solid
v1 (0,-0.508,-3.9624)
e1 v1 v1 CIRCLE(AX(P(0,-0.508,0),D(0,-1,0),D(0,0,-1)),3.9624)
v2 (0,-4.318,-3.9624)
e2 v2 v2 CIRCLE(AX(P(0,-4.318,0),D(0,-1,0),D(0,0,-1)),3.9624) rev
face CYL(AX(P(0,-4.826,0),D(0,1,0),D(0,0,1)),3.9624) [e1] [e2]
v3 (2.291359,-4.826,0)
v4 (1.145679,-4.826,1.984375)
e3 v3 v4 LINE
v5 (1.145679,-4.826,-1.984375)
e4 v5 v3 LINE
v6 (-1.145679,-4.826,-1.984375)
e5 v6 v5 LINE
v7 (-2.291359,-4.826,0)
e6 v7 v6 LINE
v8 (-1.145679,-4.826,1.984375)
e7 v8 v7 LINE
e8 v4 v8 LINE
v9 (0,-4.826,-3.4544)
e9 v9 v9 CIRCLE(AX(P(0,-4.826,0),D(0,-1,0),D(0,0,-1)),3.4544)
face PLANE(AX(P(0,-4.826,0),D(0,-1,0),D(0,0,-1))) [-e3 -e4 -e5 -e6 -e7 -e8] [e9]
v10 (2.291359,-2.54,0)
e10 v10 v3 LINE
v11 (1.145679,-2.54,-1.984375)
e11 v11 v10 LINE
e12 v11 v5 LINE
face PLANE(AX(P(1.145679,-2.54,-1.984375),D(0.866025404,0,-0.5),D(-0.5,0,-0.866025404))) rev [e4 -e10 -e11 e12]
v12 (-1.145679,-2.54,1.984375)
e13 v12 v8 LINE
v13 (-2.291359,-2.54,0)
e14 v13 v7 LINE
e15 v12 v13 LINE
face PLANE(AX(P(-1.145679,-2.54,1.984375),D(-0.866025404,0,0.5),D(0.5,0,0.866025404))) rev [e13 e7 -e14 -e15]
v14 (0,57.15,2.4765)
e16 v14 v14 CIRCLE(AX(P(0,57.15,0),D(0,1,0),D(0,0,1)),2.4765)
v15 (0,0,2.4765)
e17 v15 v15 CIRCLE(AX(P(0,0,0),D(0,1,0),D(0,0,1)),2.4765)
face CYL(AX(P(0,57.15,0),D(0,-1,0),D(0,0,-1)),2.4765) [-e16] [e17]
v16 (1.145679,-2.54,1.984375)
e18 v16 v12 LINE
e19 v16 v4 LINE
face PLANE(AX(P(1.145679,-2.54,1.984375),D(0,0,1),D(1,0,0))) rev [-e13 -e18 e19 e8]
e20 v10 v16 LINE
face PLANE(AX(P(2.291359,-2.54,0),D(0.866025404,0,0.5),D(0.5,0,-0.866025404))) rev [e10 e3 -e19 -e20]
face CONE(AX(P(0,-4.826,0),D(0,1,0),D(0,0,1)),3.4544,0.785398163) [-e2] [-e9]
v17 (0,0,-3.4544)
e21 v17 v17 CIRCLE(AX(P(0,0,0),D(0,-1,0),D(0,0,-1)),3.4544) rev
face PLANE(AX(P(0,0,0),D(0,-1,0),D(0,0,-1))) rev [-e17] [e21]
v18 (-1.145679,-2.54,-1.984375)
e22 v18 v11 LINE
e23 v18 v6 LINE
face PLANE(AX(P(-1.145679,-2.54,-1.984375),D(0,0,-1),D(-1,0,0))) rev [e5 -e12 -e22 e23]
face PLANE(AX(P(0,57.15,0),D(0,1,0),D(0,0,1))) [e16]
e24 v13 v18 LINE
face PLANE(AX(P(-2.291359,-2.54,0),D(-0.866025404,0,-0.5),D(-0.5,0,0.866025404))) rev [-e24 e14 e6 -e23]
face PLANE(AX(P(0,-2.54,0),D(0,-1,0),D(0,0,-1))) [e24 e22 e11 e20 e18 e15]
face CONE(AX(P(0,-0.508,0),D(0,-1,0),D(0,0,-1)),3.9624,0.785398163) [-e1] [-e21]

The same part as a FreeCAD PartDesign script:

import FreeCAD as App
import Part
import Sketcher

V = App.Vector
Q = App.Units.Quantity


def edges_at(feature, points):
    """Names of the edges that pass closest to the given points."""
    edges = feature.Shape.Edges
    near = lambda p: min(range(len(edges)), key=lambda i: edges[i].distToShape(Part.Vertex(*p))[0])
    return sorted({f"Edge{near(p) + 1}" for p in points})


def add_polygon(sketch, points):
    """Adds a closed chain of lines whose ends are joined by coincident constraints."""
    first, n = sketch.GeometryCount, len(points)
    for a, b in zip(points, points[1:] + points[:1]):
        sketch.addGeometry(Part.LineSegment(App.Vector(*a, 0), App.Vector(*b, 0)), False)
    for i in range(n):
        sketch.addConstraint(Sketcher.Constraint("Coincident", first + i, 2, first + (i + 1) % n, 1))

doc = App.newDocument("Part")
body = doc.addObject("PartDesign::Body", "Body")

sketch1 = body.newObject("Sketcher::SketchObject", "Sketch")
sketch1.AttachmentSupport = (doc.getObject("XZ_Plane"), [""])
sketch1.MapMode = "FlatFace"
sketch1.addGeometry(Part.Circle(V(0, 0, 0), V(0, 0, 1), 2.4765), False)
sketch1.addConstraint(Sketcher.Constraint("Coincident", 0, 3, -1, 1))
sketch1.addConstraint(Sketcher.Constraint("Diameter", 0, Q("0.195 in")))
pad1 = body.newObject("PartDesign::Pad", "Pad")
pad1.Profile = sketch1
pad1.Length = Q("2.25 in")
pad1.Reversed = True

sketch2 = body.newObject("Sketcher::SketchObject", "Sketch001")
sketch2.AttachmentSupport = (doc.getObject("XZ_Plane"), [""])
sketch2.MapMode = "FlatFace"
sketch2.addGeometry(Part.Circle(V(0, 0, 0), V(0, 0, 1), 3.9624), False)
sketch2.addConstraint(Sketcher.Constraint("Coincident", 0, 3, -1, 1))
sketch2.addConstraint(Sketcher.Constraint("Diameter", 0, Q("0.312 in")))
pad2 = body.newObject("PartDesign::Pad", "Pad001")
pad2.Profile = sketch2
pad2.Length = Q("0.19 in")

sketch3 = body.newObject("Sketcher::SketchObject", "Sketch002")
sketch3.AttachmentSupport = (doc.getObject("XZ_Plane"), [""])
sketch3.MapMode = "FlatFace"
sketch3.AttachmentOffset = App.Placement(V(0, 0, 0.19 * 25.4), App.Rotation())
add_polygon(sketch3, [(2.291359, 0), (1.145679, 1.984375), (-1.145679, 1.984375), (-2.291359, 0), (-1.145679, -1.984375), (1.145679, -1.984375)])
sketch3.addConstraint(Sketcher.Constraint("Horizontal", 1))
sketch3.addConstraint(Sketcher.Constraint("Horizontal", 4))
sketch3.addConstraint(Sketcher.Constraint("Symmetric", 0, 2, 3, 2, -1, 1))
sketch3.addConstraint(Sketcher.Constraint("Symmetric", 2, 2, 5, 2, -1, 1))
sketch3.addConstraint(Sketcher.Constraint("PointOnObject", 2, 2, -1))
sketch3.addConstraint(Sketcher.Constraint("Parallel", 2, 5))
sketch3.addConstraint(Sketcher.Constraint("Vertical", 1, 2, 3, 2))
sketch3.addConstraint(Sketcher.Constraint("Angle", 0, Q("120 deg")))
sketch3.addConstraint(Sketcher.Constraint("DistanceY", -1, 1, 0, 2, Q("0.078125 in")))
sketch3.addConstraint(Sketcher.Constraint("DistanceX", 1, 2, 1, 1, Q("2.291359 mm")))
pocket1 = body.newObject("PartDesign::Pocket", "Pocket")
pocket1.Profile = sketch3
pocket1.Length = Q("0.09 in")
doc.recompute()

chamfer = body.newObject("PartDesign::Chamfer", "Chamfer")
chamfer.Base = (pocket1, edges_at(pocket1, [(0, 0, 3.962), (0, -4.826, 3.962)]))
chamfer.Size = Q("0.02 in")

doc.recompute()
